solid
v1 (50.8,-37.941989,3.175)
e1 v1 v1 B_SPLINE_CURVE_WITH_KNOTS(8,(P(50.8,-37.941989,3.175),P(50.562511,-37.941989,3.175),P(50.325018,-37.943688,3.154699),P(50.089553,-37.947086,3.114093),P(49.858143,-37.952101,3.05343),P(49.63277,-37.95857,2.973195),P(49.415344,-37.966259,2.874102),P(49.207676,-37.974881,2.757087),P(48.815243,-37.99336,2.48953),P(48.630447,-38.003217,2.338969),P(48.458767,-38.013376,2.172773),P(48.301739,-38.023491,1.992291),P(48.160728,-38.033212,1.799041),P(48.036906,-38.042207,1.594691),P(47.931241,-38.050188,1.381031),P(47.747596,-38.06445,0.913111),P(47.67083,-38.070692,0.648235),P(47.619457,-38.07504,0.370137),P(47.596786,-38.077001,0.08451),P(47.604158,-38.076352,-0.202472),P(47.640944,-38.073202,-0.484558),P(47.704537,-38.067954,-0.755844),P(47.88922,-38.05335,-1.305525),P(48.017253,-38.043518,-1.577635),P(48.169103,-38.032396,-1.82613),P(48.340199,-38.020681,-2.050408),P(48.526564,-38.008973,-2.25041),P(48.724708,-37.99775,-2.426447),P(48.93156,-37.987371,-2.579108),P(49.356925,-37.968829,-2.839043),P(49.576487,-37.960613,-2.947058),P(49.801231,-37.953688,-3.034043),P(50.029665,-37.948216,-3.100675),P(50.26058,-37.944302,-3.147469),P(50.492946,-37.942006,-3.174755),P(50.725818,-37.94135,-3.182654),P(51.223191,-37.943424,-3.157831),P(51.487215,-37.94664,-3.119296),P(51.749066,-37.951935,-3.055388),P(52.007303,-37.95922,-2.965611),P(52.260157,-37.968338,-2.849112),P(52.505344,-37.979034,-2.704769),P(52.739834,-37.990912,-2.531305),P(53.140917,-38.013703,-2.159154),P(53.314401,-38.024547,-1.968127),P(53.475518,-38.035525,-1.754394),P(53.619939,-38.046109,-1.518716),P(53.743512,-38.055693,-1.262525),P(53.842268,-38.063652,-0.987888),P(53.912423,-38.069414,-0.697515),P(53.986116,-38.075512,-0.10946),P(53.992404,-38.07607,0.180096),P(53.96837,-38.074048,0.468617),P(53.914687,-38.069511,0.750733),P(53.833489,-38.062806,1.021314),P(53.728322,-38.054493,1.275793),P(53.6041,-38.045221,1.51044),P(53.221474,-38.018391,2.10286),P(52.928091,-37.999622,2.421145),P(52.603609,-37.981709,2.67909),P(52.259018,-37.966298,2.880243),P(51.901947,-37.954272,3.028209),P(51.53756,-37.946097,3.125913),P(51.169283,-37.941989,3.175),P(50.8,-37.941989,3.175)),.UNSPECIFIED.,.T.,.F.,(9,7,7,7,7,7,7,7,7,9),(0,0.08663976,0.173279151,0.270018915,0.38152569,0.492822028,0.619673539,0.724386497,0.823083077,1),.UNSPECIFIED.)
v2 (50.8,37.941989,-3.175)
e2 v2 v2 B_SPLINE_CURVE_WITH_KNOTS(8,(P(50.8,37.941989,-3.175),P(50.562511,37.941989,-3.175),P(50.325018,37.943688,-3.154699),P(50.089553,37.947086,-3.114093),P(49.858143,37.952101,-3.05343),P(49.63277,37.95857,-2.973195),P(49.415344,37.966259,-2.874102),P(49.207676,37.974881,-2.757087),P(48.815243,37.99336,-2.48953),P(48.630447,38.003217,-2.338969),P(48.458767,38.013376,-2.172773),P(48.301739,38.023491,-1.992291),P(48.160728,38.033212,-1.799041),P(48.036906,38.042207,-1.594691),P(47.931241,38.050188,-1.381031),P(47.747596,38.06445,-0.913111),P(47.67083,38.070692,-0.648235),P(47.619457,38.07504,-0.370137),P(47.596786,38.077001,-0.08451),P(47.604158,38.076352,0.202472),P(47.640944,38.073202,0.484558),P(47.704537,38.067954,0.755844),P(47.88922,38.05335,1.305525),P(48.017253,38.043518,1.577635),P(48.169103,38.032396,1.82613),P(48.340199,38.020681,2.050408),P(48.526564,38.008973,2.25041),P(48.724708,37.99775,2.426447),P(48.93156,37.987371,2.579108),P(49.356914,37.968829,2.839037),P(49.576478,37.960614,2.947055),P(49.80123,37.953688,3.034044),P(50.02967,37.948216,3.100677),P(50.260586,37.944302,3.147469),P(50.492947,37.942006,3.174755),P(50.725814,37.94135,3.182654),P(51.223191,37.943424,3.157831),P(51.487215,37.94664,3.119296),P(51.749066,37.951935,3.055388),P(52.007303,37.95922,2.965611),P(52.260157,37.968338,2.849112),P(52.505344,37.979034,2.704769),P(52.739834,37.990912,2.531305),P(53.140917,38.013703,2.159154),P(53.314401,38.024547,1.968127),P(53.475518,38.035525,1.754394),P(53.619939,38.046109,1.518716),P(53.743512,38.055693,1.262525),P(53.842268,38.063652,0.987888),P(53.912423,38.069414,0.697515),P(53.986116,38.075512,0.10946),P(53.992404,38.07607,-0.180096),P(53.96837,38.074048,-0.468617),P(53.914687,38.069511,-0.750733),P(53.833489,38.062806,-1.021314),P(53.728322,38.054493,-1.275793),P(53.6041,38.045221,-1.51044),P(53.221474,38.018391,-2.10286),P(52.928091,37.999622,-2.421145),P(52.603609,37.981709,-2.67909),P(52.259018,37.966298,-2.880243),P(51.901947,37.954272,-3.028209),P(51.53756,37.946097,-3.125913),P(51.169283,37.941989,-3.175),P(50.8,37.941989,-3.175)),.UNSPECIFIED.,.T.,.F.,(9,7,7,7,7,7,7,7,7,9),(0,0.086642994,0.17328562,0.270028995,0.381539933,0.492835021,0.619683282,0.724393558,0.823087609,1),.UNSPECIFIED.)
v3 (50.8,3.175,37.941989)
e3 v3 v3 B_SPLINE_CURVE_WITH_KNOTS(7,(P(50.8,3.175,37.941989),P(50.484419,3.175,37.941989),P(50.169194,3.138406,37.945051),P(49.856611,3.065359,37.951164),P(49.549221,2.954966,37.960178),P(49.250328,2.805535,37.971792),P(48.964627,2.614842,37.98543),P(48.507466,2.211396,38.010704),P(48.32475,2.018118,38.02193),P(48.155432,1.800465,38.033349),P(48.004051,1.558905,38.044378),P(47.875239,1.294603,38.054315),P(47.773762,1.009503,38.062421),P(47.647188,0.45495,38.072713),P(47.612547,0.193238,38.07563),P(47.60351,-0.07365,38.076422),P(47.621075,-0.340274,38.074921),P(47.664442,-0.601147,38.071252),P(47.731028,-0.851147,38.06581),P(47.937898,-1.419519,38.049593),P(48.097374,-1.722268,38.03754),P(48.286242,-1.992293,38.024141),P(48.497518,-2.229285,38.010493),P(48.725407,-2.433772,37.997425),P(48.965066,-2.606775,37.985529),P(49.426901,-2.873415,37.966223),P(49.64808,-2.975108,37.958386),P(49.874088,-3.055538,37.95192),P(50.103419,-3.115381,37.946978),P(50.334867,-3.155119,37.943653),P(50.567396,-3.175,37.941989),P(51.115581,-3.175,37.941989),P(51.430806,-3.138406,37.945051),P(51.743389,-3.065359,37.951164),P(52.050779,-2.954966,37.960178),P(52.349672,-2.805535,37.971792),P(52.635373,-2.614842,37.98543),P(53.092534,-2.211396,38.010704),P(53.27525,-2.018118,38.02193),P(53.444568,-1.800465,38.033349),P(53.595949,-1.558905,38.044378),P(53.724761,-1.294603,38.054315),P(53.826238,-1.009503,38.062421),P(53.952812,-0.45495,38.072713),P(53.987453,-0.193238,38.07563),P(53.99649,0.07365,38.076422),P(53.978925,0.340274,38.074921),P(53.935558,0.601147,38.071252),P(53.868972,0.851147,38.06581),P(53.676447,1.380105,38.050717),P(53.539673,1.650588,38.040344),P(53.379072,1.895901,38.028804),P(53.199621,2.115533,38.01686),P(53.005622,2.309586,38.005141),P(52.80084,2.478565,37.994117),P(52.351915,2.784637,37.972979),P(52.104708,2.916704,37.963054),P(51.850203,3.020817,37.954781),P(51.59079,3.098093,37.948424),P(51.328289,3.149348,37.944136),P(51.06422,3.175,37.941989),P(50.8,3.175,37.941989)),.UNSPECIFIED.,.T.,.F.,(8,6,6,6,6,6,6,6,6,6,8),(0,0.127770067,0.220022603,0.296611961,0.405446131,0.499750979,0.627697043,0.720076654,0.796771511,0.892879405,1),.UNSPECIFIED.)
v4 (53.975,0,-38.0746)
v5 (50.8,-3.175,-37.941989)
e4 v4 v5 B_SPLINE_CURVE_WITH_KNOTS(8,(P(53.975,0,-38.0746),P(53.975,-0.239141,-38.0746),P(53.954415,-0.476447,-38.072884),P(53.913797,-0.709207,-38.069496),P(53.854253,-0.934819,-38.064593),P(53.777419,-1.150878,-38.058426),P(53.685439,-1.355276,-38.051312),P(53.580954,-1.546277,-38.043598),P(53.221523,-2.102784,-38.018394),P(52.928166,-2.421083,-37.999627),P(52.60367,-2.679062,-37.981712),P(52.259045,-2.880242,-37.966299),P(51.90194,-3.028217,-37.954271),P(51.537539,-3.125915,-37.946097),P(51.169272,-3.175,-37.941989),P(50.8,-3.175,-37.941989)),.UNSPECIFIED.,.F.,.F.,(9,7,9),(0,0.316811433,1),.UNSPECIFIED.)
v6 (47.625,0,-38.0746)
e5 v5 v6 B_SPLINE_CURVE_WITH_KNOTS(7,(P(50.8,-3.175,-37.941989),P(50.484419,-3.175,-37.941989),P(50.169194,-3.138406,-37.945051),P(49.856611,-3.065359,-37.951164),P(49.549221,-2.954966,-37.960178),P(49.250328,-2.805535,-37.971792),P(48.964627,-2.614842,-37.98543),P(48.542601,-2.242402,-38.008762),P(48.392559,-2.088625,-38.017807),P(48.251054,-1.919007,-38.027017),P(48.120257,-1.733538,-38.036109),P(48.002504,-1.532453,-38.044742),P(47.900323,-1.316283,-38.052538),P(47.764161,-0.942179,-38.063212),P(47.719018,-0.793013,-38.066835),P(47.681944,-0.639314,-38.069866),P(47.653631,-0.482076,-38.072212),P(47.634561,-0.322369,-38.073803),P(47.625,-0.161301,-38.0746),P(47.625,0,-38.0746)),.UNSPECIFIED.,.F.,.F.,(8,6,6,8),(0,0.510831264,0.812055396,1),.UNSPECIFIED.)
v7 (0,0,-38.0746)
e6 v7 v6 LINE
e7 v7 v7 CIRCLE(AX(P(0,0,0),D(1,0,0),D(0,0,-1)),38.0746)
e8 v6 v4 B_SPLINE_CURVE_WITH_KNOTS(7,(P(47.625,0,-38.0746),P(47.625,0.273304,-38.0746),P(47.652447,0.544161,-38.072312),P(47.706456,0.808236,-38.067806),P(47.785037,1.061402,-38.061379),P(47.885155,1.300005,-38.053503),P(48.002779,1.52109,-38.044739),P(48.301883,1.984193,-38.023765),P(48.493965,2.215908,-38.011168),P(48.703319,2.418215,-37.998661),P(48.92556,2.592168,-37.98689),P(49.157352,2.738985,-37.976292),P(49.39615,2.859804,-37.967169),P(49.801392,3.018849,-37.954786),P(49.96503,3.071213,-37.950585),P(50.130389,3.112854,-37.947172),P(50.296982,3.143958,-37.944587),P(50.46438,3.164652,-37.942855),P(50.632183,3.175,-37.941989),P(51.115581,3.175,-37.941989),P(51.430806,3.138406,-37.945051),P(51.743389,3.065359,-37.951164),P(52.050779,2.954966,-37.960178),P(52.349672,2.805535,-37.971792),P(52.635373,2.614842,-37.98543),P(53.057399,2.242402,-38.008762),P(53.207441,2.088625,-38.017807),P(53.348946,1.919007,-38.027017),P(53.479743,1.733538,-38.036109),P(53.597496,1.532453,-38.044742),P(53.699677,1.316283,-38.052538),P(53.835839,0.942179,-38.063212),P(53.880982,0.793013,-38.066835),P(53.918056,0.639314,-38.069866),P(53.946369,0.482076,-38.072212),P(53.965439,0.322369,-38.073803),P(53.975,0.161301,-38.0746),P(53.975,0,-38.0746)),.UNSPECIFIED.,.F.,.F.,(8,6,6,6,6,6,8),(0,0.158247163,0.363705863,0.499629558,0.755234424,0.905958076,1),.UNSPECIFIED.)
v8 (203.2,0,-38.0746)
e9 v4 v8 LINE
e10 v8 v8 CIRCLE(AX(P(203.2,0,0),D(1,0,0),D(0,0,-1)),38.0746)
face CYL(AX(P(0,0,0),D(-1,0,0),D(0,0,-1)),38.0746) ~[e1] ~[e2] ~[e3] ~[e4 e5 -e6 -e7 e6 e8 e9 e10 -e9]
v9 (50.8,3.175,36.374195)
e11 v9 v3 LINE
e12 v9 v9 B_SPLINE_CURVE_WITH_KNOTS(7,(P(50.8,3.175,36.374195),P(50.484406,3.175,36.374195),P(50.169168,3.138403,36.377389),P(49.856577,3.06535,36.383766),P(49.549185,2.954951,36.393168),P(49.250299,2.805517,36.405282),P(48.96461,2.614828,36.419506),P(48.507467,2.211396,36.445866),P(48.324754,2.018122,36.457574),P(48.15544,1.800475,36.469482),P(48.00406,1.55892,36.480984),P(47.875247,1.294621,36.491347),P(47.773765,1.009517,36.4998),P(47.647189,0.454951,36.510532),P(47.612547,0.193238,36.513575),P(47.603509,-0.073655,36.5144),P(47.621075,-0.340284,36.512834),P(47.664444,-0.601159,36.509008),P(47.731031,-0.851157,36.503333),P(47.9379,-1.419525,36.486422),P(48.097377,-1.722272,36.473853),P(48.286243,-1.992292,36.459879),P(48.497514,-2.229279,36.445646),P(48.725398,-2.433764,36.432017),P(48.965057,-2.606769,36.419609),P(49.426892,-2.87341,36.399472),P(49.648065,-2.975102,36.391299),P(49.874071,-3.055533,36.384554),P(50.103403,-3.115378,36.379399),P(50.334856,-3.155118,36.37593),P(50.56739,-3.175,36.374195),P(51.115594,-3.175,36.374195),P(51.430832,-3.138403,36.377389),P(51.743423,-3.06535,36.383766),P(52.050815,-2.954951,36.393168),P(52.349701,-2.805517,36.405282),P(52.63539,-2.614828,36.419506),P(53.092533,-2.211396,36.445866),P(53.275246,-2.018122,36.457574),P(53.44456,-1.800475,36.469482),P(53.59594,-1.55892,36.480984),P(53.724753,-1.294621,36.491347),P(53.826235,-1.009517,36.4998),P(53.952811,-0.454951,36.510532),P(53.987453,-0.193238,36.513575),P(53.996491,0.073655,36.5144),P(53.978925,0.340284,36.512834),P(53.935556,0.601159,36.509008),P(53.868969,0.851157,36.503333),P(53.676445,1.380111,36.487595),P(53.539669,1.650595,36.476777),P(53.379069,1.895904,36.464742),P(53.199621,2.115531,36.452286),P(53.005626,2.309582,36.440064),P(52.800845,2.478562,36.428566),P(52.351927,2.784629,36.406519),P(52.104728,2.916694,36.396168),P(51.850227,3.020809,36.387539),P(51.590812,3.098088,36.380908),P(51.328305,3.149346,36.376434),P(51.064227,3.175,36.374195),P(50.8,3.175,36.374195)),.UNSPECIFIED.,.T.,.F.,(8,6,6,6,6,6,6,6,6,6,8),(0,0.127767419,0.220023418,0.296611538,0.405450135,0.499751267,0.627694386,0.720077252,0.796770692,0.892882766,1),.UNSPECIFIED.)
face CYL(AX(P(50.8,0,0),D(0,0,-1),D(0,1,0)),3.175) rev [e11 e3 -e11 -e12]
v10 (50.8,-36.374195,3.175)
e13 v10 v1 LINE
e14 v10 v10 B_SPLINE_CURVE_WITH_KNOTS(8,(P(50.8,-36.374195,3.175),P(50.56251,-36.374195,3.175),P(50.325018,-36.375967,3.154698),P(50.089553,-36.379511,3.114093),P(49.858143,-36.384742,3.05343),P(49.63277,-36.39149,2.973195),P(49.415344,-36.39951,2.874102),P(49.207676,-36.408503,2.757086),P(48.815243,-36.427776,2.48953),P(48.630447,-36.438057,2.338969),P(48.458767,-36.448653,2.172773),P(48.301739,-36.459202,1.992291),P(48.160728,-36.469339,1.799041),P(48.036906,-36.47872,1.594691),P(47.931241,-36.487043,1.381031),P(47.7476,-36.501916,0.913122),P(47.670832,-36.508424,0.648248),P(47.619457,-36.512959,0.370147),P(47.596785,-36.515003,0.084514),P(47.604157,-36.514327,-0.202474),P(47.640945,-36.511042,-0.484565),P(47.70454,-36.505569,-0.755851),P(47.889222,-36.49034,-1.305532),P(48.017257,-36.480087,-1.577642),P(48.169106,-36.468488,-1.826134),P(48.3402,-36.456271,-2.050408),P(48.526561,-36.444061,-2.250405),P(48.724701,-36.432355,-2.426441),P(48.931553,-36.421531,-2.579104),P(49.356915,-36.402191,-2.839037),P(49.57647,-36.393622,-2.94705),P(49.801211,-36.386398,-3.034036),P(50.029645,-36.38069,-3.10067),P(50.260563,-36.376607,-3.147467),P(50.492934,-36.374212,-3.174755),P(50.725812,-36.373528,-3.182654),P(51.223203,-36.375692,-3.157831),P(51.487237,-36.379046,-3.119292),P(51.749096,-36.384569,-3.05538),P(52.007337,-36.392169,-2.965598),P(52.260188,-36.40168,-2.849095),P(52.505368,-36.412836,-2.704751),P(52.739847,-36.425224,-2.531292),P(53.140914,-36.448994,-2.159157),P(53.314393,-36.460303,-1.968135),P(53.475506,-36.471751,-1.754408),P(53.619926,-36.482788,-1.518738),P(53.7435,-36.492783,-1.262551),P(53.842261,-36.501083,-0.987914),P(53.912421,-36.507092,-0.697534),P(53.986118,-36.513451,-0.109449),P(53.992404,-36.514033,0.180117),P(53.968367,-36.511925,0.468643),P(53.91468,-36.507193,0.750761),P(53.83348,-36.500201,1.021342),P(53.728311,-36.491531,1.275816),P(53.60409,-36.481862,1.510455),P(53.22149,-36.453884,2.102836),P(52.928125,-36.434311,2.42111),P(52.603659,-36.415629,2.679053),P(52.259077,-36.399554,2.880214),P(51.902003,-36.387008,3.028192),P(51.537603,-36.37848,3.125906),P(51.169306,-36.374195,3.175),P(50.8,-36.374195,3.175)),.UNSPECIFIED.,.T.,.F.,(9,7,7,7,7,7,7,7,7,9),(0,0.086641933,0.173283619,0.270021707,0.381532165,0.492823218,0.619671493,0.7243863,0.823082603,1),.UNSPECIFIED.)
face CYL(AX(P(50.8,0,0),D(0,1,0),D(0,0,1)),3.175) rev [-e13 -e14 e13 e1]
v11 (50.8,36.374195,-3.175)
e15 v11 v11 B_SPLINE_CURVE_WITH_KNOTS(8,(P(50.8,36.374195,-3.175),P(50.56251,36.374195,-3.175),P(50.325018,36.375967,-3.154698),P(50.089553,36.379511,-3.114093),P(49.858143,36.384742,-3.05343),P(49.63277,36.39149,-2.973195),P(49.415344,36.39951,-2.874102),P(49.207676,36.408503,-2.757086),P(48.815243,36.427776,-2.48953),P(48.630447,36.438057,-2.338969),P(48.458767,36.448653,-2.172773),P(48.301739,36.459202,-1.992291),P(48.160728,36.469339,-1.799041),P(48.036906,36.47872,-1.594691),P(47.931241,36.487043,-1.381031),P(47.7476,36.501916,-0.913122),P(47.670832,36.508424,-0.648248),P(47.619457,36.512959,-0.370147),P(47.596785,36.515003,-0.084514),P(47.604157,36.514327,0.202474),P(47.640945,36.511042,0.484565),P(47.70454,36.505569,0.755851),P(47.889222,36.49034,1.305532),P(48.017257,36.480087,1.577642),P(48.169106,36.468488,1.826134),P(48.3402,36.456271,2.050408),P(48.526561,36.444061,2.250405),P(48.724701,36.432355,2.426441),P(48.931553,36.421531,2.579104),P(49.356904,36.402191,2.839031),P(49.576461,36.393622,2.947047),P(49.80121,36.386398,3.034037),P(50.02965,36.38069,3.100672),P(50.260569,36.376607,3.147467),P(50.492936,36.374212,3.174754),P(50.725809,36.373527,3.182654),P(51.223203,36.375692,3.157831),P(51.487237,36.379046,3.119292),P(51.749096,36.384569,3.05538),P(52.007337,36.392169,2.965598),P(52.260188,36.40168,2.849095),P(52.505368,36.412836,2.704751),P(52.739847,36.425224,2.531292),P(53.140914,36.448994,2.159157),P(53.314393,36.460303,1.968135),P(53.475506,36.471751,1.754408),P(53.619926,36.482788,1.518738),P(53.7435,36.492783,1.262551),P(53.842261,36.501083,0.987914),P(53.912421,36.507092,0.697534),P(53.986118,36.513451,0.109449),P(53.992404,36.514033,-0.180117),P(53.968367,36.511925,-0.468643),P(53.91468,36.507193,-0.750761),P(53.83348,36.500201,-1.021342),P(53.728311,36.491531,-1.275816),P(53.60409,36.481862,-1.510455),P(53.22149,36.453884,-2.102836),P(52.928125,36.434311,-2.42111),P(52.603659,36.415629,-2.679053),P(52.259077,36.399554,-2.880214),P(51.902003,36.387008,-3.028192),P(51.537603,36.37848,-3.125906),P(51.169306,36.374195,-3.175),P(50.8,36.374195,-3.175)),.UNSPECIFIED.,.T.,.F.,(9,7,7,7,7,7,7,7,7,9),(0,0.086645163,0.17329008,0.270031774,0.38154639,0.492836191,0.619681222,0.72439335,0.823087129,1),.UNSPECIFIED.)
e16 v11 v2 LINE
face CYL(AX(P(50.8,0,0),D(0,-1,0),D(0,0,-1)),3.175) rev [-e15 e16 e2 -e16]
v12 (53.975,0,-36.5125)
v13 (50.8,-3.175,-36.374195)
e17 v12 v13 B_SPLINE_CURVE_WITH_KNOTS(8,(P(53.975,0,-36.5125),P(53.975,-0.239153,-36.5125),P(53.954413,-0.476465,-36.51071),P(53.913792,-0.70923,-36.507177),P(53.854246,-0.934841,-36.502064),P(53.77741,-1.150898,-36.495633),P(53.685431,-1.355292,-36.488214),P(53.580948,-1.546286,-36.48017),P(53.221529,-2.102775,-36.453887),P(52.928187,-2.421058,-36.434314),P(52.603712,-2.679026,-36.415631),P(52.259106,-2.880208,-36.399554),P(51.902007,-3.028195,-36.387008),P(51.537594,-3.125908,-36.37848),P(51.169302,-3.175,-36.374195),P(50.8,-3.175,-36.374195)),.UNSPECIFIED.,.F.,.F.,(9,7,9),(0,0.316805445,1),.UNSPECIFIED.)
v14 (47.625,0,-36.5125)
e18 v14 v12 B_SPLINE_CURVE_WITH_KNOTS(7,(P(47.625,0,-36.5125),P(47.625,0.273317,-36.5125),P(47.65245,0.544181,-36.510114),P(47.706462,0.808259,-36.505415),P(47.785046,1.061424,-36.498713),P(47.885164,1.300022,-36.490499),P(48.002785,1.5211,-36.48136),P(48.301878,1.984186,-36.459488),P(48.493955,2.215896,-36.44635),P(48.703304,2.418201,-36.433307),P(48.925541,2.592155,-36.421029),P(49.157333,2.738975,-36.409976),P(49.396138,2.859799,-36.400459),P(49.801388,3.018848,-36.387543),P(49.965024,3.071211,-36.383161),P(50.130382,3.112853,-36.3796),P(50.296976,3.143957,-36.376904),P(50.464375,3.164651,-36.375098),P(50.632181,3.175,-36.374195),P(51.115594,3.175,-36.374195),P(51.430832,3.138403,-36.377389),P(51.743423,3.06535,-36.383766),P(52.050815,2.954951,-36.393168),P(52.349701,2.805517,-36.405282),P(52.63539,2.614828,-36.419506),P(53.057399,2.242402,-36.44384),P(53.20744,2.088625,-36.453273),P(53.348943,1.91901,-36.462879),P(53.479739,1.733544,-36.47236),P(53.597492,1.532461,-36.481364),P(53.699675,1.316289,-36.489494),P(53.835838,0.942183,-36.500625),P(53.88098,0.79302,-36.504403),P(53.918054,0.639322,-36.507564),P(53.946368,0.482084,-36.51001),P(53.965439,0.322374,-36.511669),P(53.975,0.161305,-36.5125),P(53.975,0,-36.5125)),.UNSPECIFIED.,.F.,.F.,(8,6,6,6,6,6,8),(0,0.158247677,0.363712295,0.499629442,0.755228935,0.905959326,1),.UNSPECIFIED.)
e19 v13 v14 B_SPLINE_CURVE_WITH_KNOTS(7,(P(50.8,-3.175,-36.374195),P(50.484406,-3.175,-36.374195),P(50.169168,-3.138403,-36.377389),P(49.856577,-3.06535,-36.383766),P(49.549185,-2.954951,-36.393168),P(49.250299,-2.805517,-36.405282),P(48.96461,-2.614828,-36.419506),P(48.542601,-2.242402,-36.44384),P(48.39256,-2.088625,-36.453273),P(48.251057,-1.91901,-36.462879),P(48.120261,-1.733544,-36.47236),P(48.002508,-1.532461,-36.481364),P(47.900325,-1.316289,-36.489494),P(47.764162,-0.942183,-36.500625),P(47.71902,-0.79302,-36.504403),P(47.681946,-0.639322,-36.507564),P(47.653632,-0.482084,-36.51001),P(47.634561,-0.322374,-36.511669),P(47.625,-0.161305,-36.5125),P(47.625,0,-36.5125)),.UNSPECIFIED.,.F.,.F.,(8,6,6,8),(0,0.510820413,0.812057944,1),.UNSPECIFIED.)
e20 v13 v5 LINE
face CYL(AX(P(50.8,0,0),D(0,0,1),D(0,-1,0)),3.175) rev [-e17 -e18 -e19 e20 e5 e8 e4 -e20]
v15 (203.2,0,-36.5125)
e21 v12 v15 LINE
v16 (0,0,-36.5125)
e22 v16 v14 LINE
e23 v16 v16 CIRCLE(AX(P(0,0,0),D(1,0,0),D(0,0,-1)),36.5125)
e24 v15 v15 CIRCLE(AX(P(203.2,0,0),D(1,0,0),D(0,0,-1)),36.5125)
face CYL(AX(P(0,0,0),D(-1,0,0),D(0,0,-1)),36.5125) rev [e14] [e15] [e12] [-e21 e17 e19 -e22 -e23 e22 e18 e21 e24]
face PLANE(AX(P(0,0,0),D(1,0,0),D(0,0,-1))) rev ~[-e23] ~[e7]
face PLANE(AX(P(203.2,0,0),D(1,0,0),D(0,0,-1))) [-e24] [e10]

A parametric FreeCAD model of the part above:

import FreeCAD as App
import Part
import Sketcher
Q = App.Units.Quantity

doc = App.newDocument("Part")
body = doc.addObject("PartDesign::Body", "Body")

sketch1 = body.newObject("Sketcher::SketchObject", "Sketch")
sketch1.AttachmentSupport = (doc.getObject("YZ_Plane"), [""])
sketch1.MapMode = "FlatFace"
sketch1.addGeometry(Part.Circle(App.Vector(0, 0, 0), App.Vector(0, 0, 1), 38), False)
sketch1.addGeometry(Part.Circle(App.Vector(0, 0, 0), App.Vector(0, 0, 1), 37), False)
sketch1.addConstraint(Sketcher.Constraint("Coincident", 0, 3, -1, 1))
sketch1.addConstraint(Sketcher.Constraint("Coincident", 1, 3, -1, 1))
sketch1.addConstraint(Sketcher.Constraint("Diameter", 0, Q("2.998 in")))
sketch1.addConstraint(Sketcher.Constraint("Diameter", 1, Q("2.875 in")))
pad1 = body.newObject("PartDesign::Pad", "Pad")
pad1.Profile = sketch1
pad1.Length = Q("8 in")

sketch2 = body.newObject("Sketcher::SketchObject", "Sketch001")
sketch2.AttachmentSupport = (doc.getObject("XZ_Plane"), [""])
sketch2.MapMode = "FlatFace"
sketch2.addGeometry(Part.Circle(App.Vector(50.8, 0, 0), App.Vector(0, 0, 1), 3.2), False)
sketch2.addConstraint(Sketcher.Constraint("PointOnObject", 0, 3, -1))
sketch2.addConstraint(Sketcher.Constraint("Diameter", 0, Q("0.25 in")))
sketch2.addConstraint(Sketcher.Constraint("DistanceX", -1, 1, 0, 3, Q("2 in")))
pocket1 = body.newObject("PartDesign::Pocket", "Pocket")
pocket1.Profile = sketch2
pocket1.Type = "ThroughAll"
doc.recompute()

polarpattern = body.newObject("PartDesign::PolarPattern", "PolarPattern")
polarpattern.Originals = [pocket1]
polarpattern.Axis = (doc.getObject("X_Axis"), [""])
polarpattern.Angle = 360
polarpattern.Occurrences = 4
body.Tip = polarpattern

doc.recompute()
